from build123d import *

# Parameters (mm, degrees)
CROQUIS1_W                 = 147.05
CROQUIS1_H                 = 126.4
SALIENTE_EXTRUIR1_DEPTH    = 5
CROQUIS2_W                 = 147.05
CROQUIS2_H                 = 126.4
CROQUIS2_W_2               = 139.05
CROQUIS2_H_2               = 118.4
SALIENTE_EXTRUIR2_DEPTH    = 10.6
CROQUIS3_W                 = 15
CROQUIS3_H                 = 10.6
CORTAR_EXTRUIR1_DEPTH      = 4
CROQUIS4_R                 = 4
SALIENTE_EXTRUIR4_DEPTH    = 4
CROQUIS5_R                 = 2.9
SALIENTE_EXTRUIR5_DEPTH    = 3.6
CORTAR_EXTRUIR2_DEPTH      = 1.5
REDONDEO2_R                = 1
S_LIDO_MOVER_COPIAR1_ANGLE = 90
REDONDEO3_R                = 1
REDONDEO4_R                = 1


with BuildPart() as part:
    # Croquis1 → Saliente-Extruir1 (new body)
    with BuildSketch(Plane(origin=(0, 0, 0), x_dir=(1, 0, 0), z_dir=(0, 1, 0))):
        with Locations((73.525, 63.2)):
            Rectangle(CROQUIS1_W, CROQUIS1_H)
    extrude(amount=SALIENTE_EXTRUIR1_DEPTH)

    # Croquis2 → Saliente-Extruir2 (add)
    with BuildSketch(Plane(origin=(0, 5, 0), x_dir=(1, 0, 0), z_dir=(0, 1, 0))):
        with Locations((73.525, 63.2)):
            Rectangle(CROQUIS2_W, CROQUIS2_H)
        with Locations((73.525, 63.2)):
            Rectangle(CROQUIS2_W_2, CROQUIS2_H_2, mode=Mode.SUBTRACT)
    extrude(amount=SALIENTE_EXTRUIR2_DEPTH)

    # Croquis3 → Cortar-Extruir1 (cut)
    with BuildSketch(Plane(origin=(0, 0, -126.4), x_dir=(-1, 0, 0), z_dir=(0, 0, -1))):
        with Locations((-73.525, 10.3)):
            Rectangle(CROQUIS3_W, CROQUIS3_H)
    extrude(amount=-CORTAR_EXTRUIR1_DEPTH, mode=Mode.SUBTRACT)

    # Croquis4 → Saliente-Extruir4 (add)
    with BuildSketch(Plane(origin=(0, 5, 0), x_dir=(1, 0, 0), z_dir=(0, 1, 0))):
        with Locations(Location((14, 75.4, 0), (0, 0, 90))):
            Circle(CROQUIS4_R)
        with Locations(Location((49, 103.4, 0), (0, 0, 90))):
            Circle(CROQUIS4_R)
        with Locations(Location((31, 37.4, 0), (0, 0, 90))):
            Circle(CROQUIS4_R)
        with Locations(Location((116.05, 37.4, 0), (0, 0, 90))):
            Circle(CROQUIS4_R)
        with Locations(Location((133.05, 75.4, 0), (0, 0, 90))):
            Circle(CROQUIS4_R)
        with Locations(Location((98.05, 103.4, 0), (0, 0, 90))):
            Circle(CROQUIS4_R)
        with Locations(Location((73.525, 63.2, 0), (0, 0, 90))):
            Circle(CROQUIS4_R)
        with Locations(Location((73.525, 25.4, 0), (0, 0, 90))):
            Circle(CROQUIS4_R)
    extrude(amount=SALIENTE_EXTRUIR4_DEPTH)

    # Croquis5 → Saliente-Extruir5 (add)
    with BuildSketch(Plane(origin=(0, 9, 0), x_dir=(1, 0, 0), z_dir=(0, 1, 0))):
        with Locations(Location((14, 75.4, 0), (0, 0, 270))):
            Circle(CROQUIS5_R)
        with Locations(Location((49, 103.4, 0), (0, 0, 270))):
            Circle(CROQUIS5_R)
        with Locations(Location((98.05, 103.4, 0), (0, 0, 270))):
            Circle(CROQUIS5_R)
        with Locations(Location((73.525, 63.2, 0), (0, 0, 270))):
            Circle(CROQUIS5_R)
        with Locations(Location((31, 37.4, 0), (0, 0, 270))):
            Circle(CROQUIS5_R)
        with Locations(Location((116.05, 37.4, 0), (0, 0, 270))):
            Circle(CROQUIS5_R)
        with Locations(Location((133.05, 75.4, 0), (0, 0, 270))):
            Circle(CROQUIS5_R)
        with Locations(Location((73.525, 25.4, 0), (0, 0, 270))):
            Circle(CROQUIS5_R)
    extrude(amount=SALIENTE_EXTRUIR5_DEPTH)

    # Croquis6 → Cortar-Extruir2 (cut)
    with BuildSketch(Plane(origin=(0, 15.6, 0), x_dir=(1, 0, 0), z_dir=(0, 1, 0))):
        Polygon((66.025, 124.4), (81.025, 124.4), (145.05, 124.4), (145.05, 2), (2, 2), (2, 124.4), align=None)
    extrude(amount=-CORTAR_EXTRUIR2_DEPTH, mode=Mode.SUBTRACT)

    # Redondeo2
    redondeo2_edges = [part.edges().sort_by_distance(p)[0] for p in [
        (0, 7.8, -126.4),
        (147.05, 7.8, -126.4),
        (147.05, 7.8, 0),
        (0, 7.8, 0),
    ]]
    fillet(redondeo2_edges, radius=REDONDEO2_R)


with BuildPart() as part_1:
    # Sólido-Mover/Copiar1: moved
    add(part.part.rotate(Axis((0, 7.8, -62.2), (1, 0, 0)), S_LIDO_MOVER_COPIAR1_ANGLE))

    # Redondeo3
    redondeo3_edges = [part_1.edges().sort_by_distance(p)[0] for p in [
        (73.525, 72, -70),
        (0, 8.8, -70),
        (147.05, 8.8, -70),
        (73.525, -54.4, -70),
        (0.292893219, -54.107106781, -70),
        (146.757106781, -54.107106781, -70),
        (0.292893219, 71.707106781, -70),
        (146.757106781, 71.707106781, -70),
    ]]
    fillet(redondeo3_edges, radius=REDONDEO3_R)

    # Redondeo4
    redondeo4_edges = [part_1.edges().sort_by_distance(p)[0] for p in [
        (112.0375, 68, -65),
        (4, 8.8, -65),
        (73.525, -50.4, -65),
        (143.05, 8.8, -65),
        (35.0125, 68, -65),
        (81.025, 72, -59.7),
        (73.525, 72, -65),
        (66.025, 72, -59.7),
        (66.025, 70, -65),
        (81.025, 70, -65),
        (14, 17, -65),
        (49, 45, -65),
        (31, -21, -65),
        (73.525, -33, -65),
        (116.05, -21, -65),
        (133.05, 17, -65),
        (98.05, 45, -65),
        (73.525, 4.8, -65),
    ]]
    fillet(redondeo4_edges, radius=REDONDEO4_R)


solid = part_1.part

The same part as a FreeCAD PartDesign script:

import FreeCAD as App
import Part
import Sketcher

V = App.Vector
Q = App.Units.Quantity


def edges_at(feature, points):
    """Names of the edges that pass closest to the given points."""
    edges = feature.Shape.Edges
    near = lambda p: min(range(len(edges)), key=lambda i: edges[i].distToShape(Part.Vertex(*p))[0])
    return sorted({f"Edge{near(p) + 1}" for p in points})

doc = App.newDocument("Part")
body = doc.addObject("PartDesign::Body", "Body")

# Sketch on XZ plane
sketch1 = doc.addObject("Sketcher::SketchObject", "Sketch")
body.addObject(sketch1)
sketch1.AttachmentSupport = (doc.XZ_Plane, [""])
sketch1.MapMode = "FlatFace"
sketch1.addGeometry([
    Part.LineSegment(V(0, -126, 0), V(0, 0, 0)),
    Part.LineSegment(V(0, 0, 0), V(147, 0, 0)),
    Part.LineSegment(V(147, 0, 0), V(147, -126, 0)),
    Part.LineSegment(V(147, -126, 0), V(0, -126, 0)),
], False)
sketch1.addConstraint([
    Sketcher.Constraint("Coincident", 0, 2, 1, 1),
    Sketcher.Constraint("Coincident", 1, 2, 2, 1),
    Sketcher.Constraint("Coincident", 2, 2, 3, 1),
    Sketcher.Constraint("Coincident", 3, 2, 0, 1),
    Sketcher.Constraint("Vertical", 0),
    Sketcher.Constraint("Horizontal", 1),
    Sketcher.Constraint("Vertical", 2),
    Sketcher.Constraint("Horizontal", 3),
    Sketcher.Constraint("Coincident", 0, 2, -1, 1),
    Sketcher.Constraint("DistanceY", 0, 1, 0, 2, Q("126.4 mm")),
    Sketcher.Constraint("DistanceX", 1, 1, 1, 2, Q("147.05 mm")),
])
pad1 = doc.addObject("PartDesign::Pad", "Pad")
body.addObject(pad1)
pad1.Profile = sketch1
pad1.Length = 5
pad1.Reversed = True

# Sketch on XZ plane
sketch2 = doc.addObject("Sketcher::SketchObject", "Sketch001")
body.addObject(sketch2)
sketch2.AttachmentSupport = (doc.XZ_Plane, [""])
sketch2.MapMode = "FlatFace"
sketch2.AttachmentOffset = App.Placement(V(0, 0, -5), App.Rotation())
sketch2.addGeometry([
    Part.LineSegment(V(0, -126, 0), V(0, 0, 0)),  # 0
    Part.LineSegment(V(0, 0, 0), V(147, 0, 0)),  # 1
    Part.LineSegment(V(147, 0, 0), V(147, -126, 0)),  # 2
    Part.LineSegment(V(147, -126, 0), V(0, -126, 0)),  # 3
    Part.LineSegment(V(143, -4, 0), V(4, -4, 0)),  # 4
    Part.LineSegment(V(4, -4, 0), V(4, -122, 0)),  # 5
    Part.LineSegment(V(4, -122, 0), V(143, -122, 0)),  # 6
    Part.LineSegment(V(143, -122, 0), V(143, -4, 0)),  # 7
], False)
sketch2.addConstraint([
    Sketcher.Constraint("Coincident", 0, 2, 1, 1),
    Sketcher.Constraint("Coincident", 1, 2, 2, 1),
    Sketcher.Constraint("Coincident", 2, 2, 3, 1),
    Sketcher.Constraint("Coincident", 3, 2, 0, 1),
    Sketcher.Constraint("Coincident", 4, 2, 5, 1),
    Sketcher.Constraint("Coincident", 5, 2, 6, 1),
    Sketcher.Constraint("Coincident", 6, 2, 7, 1),
    Sketcher.Constraint("Coincident", 7, 2, 4, 1),
    Sketcher.Constraint("Vertical", 0),
    Sketcher.Constraint("Horizontal", 1),
    Sketcher.Constraint("Vertical", 2),
    Sketcher.Constraint("Horizontal", 3),
    Sketcher.Constraint("Horizontal", 4),
    Sketcher.Constraint("Vertical", 5),
    Sketcher.Constraint("Horizontal", 6),
    Sketcher.Constraint("Vertical", 7),
    Sketcher.Constraint("Coincident", 0, 2, -1, 1),
    Sketcher.Constraint("DistanceY", 0, 1, 0, 2, Q("126.4 mm")),
    Sketcher.Constraint("DistanceY", 5, 2, 5, 1, Q("118.4 mm")),
    Sketcher.Constraint("DistanceX", -1, 1, 4, 2, Q("4 mm")),
    Sketcher.Constraint("DistanceY", 4, 2, -1, 1, Q("4 mm")),
    Sketcher.Constraint("DistanceX", 6, 2, 2, 2, Q("4 mm")),
    Sketcher.Constraint("DistanceX", 1, 1, 1, 2, Q("147.05 mm")),
])
pad2 = doc.addObject("PartDesign::Pad", "Pad001")
body.addObject(pad2)
pad2.Profile = sketch2
pad2.Length = 10.6
pad2.Reversed = True

# Sketch on XY plane
sketch3 = doc.addObject("Sketcher::SketchObject", "Sketch002")
body.addObject(sketch3)
sketch3.AttachmentSupport = (doc.XY_Plane, [""])
sketch3.MapMode = "FlatFace"
sketch3.AttachmentOffset = App.Placement(V(0, 0, -126.4), App.Rotation())
sketch3.addGeometry([
    Part.LineSegment(V(81, 16, 0), V(81, 5, 0)),
    Part.LineSegment(V(81, 5, 0), V(66, 5, 0)),
    Part.LineSegment(V(66, 5, 0), V(66, 16, 0)),
    Part.LineSegment(V(66, 16, 0), V(81, 16, 0)),
], False)
sketch3.addConstraint([
    Sketcher.Constraint("Coincident", 0, 2, 1, 1),
    Sketcher.Constraint("Coincident", 1, 2, 2, 1),
    Sketcher.Constraint("Coincident", 2, 2, 3, 1),
    Sketcher.Constraint("Coincident", 3, 2, 0, 1),
    Sketcher.Constraint("Vertical", 0),
    Sketcher.Constraint("Horizontal", 1),
    Sketcher.Constraint("Vertical", 2),
    Sketcher.Constraint("Horizontal", 3),
    Sketcher.Constraint("DistanceX", 1, 2, 1, 1, Q("15 mm")),
    Sketcher.Constraint("DistanceY", 0, 2, 0, 1, Q("10.6 mm")),
    Sketcher.Constraint("DistanceY", -1, 1, 0, 2, Q("5 mm")),
    Sketcher.Constraint("DistanceX", -1, 1, 0, 2, Q("81.025 mm")),
])
pocket1 = doc.addObject("PartDesign::Pocket", "Pocket")
body.addObject(pocket1)
pocket1.Profile = sketch3
pocket1.Length = 4
pocket1.Reversed = True

# Sketch on XZ plane
sketch4 = doc.addObject("Sketcher::SketchObject", "Sketch003")
body.addObject(sketch4)
sketch4.AttachmentSupport = (doc.XZ_Plane, [""])
sketch4.MapMode = "FlatFace"
sketch4.AttachmentOffset = App.Placement(V(0, 0, -5), App.Rotation())
sketch4.addGeometry([
    Part.Circle(V(14, -75.4, 0), V(0, 0, 1), 4),  # 0
    Part.Circle(V(49, -103.4, 0), V(0, 0, 1), 4),  # 1
    Part.Circle(V(31, -37.4, 0), V(0, 0, 1), 4),  # 2
    Part.Circle(V(116, -37.4, 0), V(0, 0, 1), 4),  # 3
    Part.Circle(V(133.1, -75.4, 0), V(0, 0, 1), 4),  # 4
    Part.Circle(V(98, -103.4, 0), V(0, 0, 1), 4),  # 5
    Part.Circle(V(73.5, -63.2, 0), V(0, 0, 1), 4),  # 6
    Part.Circle(V(73.5, -25.4, 0), V(0, 0, 1), 4),  # 7
], False)
sketch4.addConstraint([
    Sketcher.Constraint("Equal", 0, 1),
    Sketcher.Constraint("Equal", 1, 2),
    Sketcher.Constraint("Equal", 2, 3),
    Sketcher.Constraint("Equal", 3, 4),
    Sketcher.Constraint("Equal", 4, 5),
    Sketcher.Constraint("Equal", 5, 6),
    Sketcher.Constraint("Equal", 6, 7),
    Sketcher.Constraint("Horizontal", 2, 3, 3, 3),
    Sketcher.Constraint("Horizontal", 0, 3, 4, 3),
    Sketcher.Constraint("Horizontal", 1, 3, 5, 3),
    Sketcher.Constraint("Vertical", 6, 3, 7, 3),
    Sketcher.Constraint("Diameter", 0, Q("8 mm")),
    Sketcher.Constraint("DistanceX", -1, 1, 0, 3, Q("14 mm")),
    Sketcher.Constraint("DistanceX", -1, 1, 1, 3, Q("49 mm")),
    Sketcher.Constraint("DistanceX", -1, 1, 2, 3, Q("31 mm")),
    Sketcher.Constraint("DistanceY", 1, 3, 0, 3, Q("28 mm")),
    Sketcher.Constraint("DistanceY", 0, 3, 2, 3, Q("38 mm")),
    Sketcher.Constraint("DistanceX", 3, 3, 4, 3, Q("17 mm")),
    Sketcher.Constraint("DistanceX", 5, 3, 4, 3, Q("35 mm")),
    Sketcher.Constraint("DistanceY", 3, 3, 7, 3, Q("12 mm")),
    Sketcher.Constraint("DistanceY", 0, 3, -1, 1, Q("75.4 mm")),
    Sketcher.Constraint("DistanceY", 6, 3, -1, 1, Q("63.2 mm")),
    Sketcher.Constraint("DistanceX", -1, 1, 3, 3, Q("116.05 mm")),
    Sketcher.Constraint("DistanceX", -1, 1, 6, 3, Q("73.525 mm")),
])
pad3 = doc.addObject("PartDesign::Pad", "Pad002")
body.addObject(pad3)
pad3.Profile = sketch4
pad3.Length = 4
pad3.Reversed = True

# Sketch on XZ plane
sketch5 = doc.addObject("Sketcher::SketchObject", "Sketch004")
body.addObject(sketch5)
sketch5.AttachmentSupport = (doc.XZ_Plane, [""])
sketch5.MapMode = "FlatFace"
sketch5.AttachmentOffset = App.Placement(V(0, 0, -9), App.Rotation())
sketch5.addGeometry([
    Part.Circle(V(14, -75.4, 0), V(0, 0, 1), 2.9),  # 0
    Part.Circle(V(49, -103.4, 0), V(0, 0, 1), 2.9),  # 1
    Part.Circle(V(98, -103.4, 0), V(0, 0, 1), 2.9),  # 2
    Part.Circle(V(73.5, -63.2, 0), V(0, 0, 1), 2.9),  # 3
    Part.Circle(V(31, -37.4, 0), V(0, 0, 1), 2.9),  # 4
    Part.Circle(V(116, -37.4, 0), V(0, 0, 1), 2.9),  # 5
    Part.Circle(V(133.1, -75.4, 0), V(0, 0, 1), 2.9),  # 6
    Part.Circle(V(73.5, -25.4, 0), V(0, 0, 1), 2.9),  # 7
], False)
sketch5.addConstraint([
    Sketcher.Constraint("Equal", 0, 1),
    Sketcher.Constraint("Equal", 1, 2),
    Sketcher.Constraint("Equal", 2, 3),
    Sketcher.Constraint("Equal", 3, 4),
    Sketcher.Constraint("Equal", 4, 5),
    Sketcher.Constraint("Equal", 5, 6),
    Sketcher.Constraint("Equal", 6, 7),
    Sketcher.Constraint("Horizontal", 1, 3, 2, 3),
    Sketcher.Constraint("Horizontal", 4, 3, 5, 3),
    Sketcher.Constraint("Horizontal", 0, 3, 6, 3),
    Sketcher.Constraint("Vertical", 3, 3, 7, 3),
    Sketcher.Constraint("Diameter", 0, Q("5.8 mm")),
    Sketcher.Constraint("DistanceX", -1, 1, 0, 3, Q("14 mm")),
    Sketcher.Constraint("DistanceX", -1, 1, 1, 3, Q("49 mm")),
    Sketcher.Constraint("DistanceX", -1, 1, 4, 3, Q("31 mm")),
    Sketcher.Constraint("DistanceY", 1, 3, 0, 3, Q("28 mm")),
    Sketcher.Constraint("DistanceY", 0, 3, 4, 3, Q("38 mm")),
    Sketcher.Constraint("DistanceX", 2, 3, 5, 3, Q("18 mm")),
    Sketcher.Constraint("DistanceX", 5, 3, 6, 3, Q("17 mm")),
    Sketcher.Constraint("DistanceY", 5, 3, 7, 3, Q("12 mm")),
    Sketcher.Constraint("DistanceY", 0, 3, -1, 1, Q("75.4 mm")),
    Sketcher.Constraint("DistanceY", 3, 3, -1, 1, Q("63.2 mm")),
    Sketcher.Constraint("DistanceX", -1, 1, 2, 3, Q("98.05 mm")),
    Sketcher.Constraint("DistanceX", -1, 1, 3, 3, Q("73.525 mm")),
])
pad4 = doc.addObject("PartDesign::Pad", "Pad003")
body.addObject(pad4)
pad4.Profile = sketch5
pad4.Length = 3.6
pad4.Reversed = True

# Sketch on XZ plane
sketch6 = doc.addObject("Sketcher::SketchObject", "Sketch005")
body.addObject(sketch6)
sketch6.AttachmentSupport = (doc.XZ_Plane, [""])
sketch6.MapMode = "FlatFace"
sketch6.AttachmentOffset = App.Placement(V(0, 0, -15.6), App.Rotation())
sketch6.addGeometry([
    Part.LineSegment(V(145, -124, 0), V(2, -124, 0)),
    Part.LineSegment(V(2, -124, 0), V(2, -2, 0)),
    Part.LineSegment(V(2, -2, 0), V(145, -2, 0)),
    Part.LineSegment(V(145, -2, 0), V(145, -124, 0)),
], False)
sketch6.addConstraint([
    Sketcher.Constraint("Coincident", 0, 2, 1, 1),
    Sketcher.Constraint("Coincident", 1, 2, 2, 1),
    Sketcher.Constraint("Coincident", 2, 2, 3, 1),
    Sketcher.Constraint("Coincident", 3, 2, 0, 1),
    Sketcher.Constraint("Horizontal", 0),
    Sketcher.Constraint("Vertical", 1),
    Sketcher.Constraint("Horizontal", 2),
    Sketcher.Constraint("Vertical", 3),
    Sketcher.Constraint("DistanceY", 1, 1, 1, 2, Q("122.4 mm")),
    Sketcher.Constraint("DistanceX", -1, 1, 0, 2, Q("2 mm")),
    Sketcher.Constraint("DistanceY", 1, 2, -1, 1, Q("2 mm")),
    Sketcher.Constraint("DistanceX", 0, 2, 0, 1, Q("143.05 mm")),
])
pocket2 = doc.addObject("PartDesign::Pocket", "Pocket001")
body.addObject(pocket2)
pocket2.Profile = sketch6
pocket2.Length = 1.5
pocket2.Reversed = True
doc.recompute()

fillet = doc.addObject("PartDesign::Fillet", "Fillet")
body.addObject(fillet)
fillet.Base = (pocket2, edges_at(pocket2, [
    (0, 7.8, -126.4),
    (147.05, 7.8, -126.4),
    (147.05, 7.8, 0),
    (0, 7.8, 0),
]))
fillet.Radius = 1
body2 = doc.addObject("PartDesign::Body", "Body001")
doc.recompute()

body.Placement = App.Placement(V(0, -54.4, -70), App.Rotation(V(1, 0, 0), 90))
boolean = doc.addObject("PartDesign::Boolean", "Boolean")
body2.addObject(boolean)
boolean.Type = "Fuse"
boolean.addObjects([body])
doc.recompute()

fillet2 = doc.addObject("PartDesign::Fillet", "Fillet001")
body2.addObject(fillet2)
fillet2.Base = (boolean, edges_at(boolean, [
    (73.525, 72, -70),
    (0, 8.8, -70),
    (147.05, 8.8, -70),
    (73.525, -54.4, -70),
    (0.293, -54.107, -70),
    (146.757, -54.107, -70),
    (0.293, 71.707, -70),
    (146.757, 71.707, -70),
]))
fillet2.Radius = 1
doc.recompute()

fillet3 = doc.addObject("PartDesign::Fillet", "Fillet002")
body2.addObject(fillet3)
fillet3.Base = (fillet2, edges_at(fillet2, [
    (112.037, 68, -65),
    (4, 8.8, -65),
    (73.525, -50.4, -65),
    (143.05, 8.8, -65),
    (35.013, 68, -65),
    (81.025, 72, -59.7),
    (73.525, 72, -65),
    (66.025, 72, -59.7),
    (66.025, 70, -65),
    (81.025, 70, -65),
    (14, 17, -65),
    (49, 45, -65),
    (31, -21, -65),
    (73.525, -33, -65),
    (116.05, -21, -65),
    (133.05, 17, -65),
    (98.05, 45, -65),
    (73.525, 4.8, -65),
]))
fillet3.Radius = 1

doc.recompute()
